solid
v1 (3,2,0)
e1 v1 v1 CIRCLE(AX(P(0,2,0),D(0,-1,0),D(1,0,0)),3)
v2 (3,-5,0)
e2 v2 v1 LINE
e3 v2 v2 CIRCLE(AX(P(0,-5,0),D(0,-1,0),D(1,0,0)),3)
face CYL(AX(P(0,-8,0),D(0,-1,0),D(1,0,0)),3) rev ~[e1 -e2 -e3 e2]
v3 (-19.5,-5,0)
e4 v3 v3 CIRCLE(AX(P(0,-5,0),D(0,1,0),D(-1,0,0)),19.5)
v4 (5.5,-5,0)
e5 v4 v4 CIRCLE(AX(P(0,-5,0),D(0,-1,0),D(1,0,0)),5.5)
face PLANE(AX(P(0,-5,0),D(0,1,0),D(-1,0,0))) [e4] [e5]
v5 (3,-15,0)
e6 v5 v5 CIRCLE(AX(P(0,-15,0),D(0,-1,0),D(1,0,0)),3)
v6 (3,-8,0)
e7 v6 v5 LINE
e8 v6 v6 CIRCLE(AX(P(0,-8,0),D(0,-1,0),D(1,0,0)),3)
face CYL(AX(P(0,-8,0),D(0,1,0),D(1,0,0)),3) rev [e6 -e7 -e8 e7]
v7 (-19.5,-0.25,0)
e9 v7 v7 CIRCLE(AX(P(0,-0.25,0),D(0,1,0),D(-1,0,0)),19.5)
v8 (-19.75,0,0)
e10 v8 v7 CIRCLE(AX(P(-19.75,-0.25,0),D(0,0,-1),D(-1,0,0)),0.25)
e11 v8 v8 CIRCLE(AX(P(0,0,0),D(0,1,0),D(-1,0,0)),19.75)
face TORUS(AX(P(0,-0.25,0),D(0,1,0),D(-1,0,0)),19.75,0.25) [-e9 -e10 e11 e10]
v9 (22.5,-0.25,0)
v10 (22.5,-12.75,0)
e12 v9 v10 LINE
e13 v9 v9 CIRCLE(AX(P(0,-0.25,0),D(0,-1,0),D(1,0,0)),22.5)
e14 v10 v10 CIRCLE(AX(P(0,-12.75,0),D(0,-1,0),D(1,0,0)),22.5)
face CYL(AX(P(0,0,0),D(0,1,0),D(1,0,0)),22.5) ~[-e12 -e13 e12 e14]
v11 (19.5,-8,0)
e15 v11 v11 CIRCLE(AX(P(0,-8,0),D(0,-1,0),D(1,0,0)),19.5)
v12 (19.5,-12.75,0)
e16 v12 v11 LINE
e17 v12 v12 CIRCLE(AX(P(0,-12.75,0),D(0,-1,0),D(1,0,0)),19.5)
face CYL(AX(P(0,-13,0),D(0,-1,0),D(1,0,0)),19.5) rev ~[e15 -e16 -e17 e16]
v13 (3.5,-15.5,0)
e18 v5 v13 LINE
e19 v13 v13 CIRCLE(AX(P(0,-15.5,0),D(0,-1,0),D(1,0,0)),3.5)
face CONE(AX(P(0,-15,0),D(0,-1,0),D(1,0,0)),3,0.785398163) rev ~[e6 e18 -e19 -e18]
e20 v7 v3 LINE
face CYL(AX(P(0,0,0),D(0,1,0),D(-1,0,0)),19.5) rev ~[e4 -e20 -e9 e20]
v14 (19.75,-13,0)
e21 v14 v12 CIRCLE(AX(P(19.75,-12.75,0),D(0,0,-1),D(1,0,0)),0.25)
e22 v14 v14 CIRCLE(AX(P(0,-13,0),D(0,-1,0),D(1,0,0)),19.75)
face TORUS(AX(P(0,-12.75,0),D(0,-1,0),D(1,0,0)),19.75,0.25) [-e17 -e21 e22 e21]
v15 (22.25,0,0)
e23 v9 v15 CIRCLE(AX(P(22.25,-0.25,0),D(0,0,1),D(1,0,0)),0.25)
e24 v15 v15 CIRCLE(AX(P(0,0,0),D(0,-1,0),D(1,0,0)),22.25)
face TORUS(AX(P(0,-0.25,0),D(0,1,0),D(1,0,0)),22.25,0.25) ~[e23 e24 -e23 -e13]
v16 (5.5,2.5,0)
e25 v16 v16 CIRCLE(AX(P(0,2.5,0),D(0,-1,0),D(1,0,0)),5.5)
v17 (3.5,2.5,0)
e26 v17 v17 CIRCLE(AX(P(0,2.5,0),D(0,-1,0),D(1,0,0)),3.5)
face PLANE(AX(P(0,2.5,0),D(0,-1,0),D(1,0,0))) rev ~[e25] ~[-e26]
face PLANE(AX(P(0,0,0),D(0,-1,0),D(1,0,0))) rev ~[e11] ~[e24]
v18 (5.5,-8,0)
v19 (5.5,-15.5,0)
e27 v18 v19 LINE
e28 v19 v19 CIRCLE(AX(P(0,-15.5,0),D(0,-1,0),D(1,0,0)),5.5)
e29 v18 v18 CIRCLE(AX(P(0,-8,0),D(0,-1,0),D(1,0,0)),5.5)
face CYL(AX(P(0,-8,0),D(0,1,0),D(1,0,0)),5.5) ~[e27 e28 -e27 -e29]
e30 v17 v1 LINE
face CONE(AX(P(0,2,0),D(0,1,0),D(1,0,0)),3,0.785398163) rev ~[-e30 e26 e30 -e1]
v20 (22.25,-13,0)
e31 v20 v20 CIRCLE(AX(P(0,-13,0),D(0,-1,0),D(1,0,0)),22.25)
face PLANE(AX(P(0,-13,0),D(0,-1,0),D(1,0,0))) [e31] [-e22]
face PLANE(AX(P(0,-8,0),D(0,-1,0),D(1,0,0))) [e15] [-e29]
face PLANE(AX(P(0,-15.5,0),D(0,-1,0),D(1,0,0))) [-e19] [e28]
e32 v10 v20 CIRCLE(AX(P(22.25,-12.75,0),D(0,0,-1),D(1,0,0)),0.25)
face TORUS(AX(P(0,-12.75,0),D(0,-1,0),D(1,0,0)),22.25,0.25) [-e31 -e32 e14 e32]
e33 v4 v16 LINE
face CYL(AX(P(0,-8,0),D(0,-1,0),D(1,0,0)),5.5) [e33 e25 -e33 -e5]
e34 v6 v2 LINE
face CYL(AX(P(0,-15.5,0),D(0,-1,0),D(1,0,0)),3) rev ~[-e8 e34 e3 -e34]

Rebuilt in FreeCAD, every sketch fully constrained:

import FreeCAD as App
import Part
import Sketcher
from FreeCAD import Vector


def edges_at(feature, points):
    """Names of the edges that pass closest to the given points."""
    edges = feature.Shape.Edges
    near = lambda p: min(range(len(edges)), key=lambda i: edges[i].distToShape(Part.Vertex(*p))[0])
    return sorted({f"Edge{near(p) + 1}" for p in points})

doc = App.newDocument("Part")
body = doc.addObject("PartDesign::Body", "Body")

# Sketch on XZ plane
sketch1 = body.newObject("Sketcher::SketchObject", "Sketch")
sketch1.AttachmentSupport = (doc.getObject("XZ_Plane"), [""])
sketch1.MapMode = "FlatFace"
sketch1.addGeometry(Part.Circle(Vector(0, 0, 0), Vector(0, 0, 1), 22), False)
sketch1.addConstraint([
    Sketcher.Constraint("Coincident", 0, 3, -1, 1),
    Sketcher.Constraint("Diameter", 0, 45.0),
])
pad1 = body.newObject("PartDesign::Pad", "Pad")
pad1.Profile = sketch1
pad1.Length = 13

# Sketch on XZ plane
sketch2 = body.newObject("Sketcher::SketchObject", "Sketch001")
sketch2.AttachmentSupport = (doc.getObject("XZ_Plane"), [""])
sketch2.MapMode = "FlatFace"
sketch2.addGeometry(Part.Circle(Vector(0, 0, 0), Vector(0, 0, 1), 20), False)
sketch2.addConstraint([
    Sketcher.Constraint("Coincident", 0, 3, -1, 1),
    Sketcher.Constraint("Diameter", 0, 39.0),
])
pocket1 = body.newObject("PartDesign::Pocket", "Pocket")
pocket1.Profile = sketch2
pocket1.Length = 5
pocket1.Reversed = True

# Sketch on XZ plane
sketch3 = body.newObject("Sketcher::SketchObject", "Sketch002")
sketch3.AttachmentSupport = (doc.getObject("XZ_Plane"), [""])
sketch3.MapMode = "FlatFace"
sketch3.AttachmentOffset = App.Placement(Vector(0, 0, 13), App.Rotation())
sketch3.addGeometry(Part.Circle(Vector(0, 0, 0), Vector(0, 0, 1), 20), False)
sketch3.addConstraint([
    Sketcher.Constraint("Coincident", 0, 3, -1, 1),
    Sketcher.Constraint("Diameter", 0, 39.0),
])
pocket2 = body.newObject("PartDesign::Pocket", "Pocket001")
pocket2.Profile = sketch3
pocket2.Length = 5
doc.recompute()

fillet = body.newObject("PartDesign::Fillet", "Fillet")
fillet.Base = (pocket2, edges_at(pocket2, [
    (-22.5, -13, 0),
    (-22.5, 0, 0),
    (-19.5, -13, 0),
    (19.5, 0, 0),
]))
fillet.Radius = 0.25

# Sketch on XZ plane
sketch4 = body.newObject("Sketcher::SketchObject", "Sketch003")
sketch4.AttachmentSupport = (doc.getObject("XZ_Plane"), [""])
sketch4.MapMode = "FlatFace"
sketch4.AttachmentOffset = App.Placement(Vector(0, 0, 8), App.Rotation())
sketch4.addGeometry([
    Part.Circle(Vector(0, 0, 0), Vector(0, 0, 1), 5.5),
    Part.Circle(Vector(0, 0, 0), Vector(0, 0, 1), 3),
], False)
sketch4.addConstraint([
    Sketcher.Constraint("Coincident", 0, 3, -1, 1),
    Sketcher.Constraint("Coincident", 1, 3, -1, 1),
    Sketcher.Constraint("Diameter", 0, 11.0),
    Sketcher.Constraint("Diameter", 1, 6.0),
])
pad2 = body.newObject("PartDesign::Pad", "Pad001")
pad2.Profile = sketch4
pad2.Type = "TwoLengths"
pad2.Length = 7.5
pad2.Length2 = 10.5

# Sketch on XZ plane
sketch5 = body.newObject("Sketcher::SketchObject", "Sketch004")
sketch5.AttachmentSupport = (doc.getObject("XZ_Plane"), [""])
sketch5.MapMode = "FlatFace"
sketch5.AttachmentOffset = App.Placement(Vector(0, 0, 15.5), App.Rotation())
sketch5.addGeometry(Part.Circle(Vector(0, 0, 0), Vector(0, 0, 1), 3), False)
sketch5.addConstraint([
    Sketcher.Constraint("Coincident", 0, 3, -1, 1),
    Sketcher.Constraint("Diameter", 0, 6.0),
])
pocket3 = body.newObject("PartDesign::Pocket", "Pocket002")
pocket3.Profile = sketch5
pocket3.Length = 25
doc.recompute()

chamfer = body.newObject("PartDesign::Chamfer", "Chamfer")
chamfer.Base = (pocket3, edges_at(pocket3, [(-3, -15.5, 0), (-3, 2.5, 0)]))
chamfer.Size = 0.5

doc.recompute()
